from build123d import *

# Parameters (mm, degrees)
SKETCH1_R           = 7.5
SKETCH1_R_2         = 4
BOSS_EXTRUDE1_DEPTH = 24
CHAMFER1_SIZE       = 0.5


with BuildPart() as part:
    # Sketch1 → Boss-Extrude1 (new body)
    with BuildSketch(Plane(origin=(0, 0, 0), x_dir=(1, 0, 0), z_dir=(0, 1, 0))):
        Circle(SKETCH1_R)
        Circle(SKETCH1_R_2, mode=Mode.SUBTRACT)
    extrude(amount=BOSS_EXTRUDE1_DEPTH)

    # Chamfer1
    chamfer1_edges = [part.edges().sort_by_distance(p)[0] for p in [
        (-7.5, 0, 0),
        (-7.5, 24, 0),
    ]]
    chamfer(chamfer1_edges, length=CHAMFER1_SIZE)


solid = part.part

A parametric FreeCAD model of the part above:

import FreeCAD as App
import Part
import Sketcher


def edges_at(feature, points):
    """Names of the edges that pass closest to the given points."""
    edges = feature.Shape.Edges
    near = lambda p: min(range(len(edges)), key=lambda i: edges[i].distToShape(Part.Vertex(*p))[0])
    return sorted({f"Edge{near(p) + 1}" for p in points})

doc = App.newDocument("Part")
body = doc.addObject("PartDesign::Body", "Body")

# Sketch on XZ plane
sketch1 = body.newObject("Sketcher::SketchObject", "Sketch")
sketch1.AttachmentSupport = (doc.getObject("XZ_Plane"), [""])
sketch1.MapMode = "FlatFace"
sketch1.addGeometry(Part.Circle(App.Vector(0, 0, 0), App.Vector(0, 0, 1), 7.5), False)
sketch1.addGeometry(Part.Circle(App.Vector(0, 0, 0), App.Vector(0, 0, 1), 4), False)
sketch1.addConstraint(Sketcher.Constraint("Coincident", 0, 3, -1, 1))
sketch1.addConstraint(Sketcher.Constraint("Coincident", 1, 3, -1, 1))
sketch1.addConstraint(Sketcher.Constraint("Diameter", 0, 15.0))
sketch1.addConstraint(Sketcher.Constraint("Diameter", 1, 8.0))
pad1 = body.newObject("PartDesign::Pad", "Pad")
pad1.Profile = sketch1
pad1.Length = 24
pad1.Reversed = True
doc.recompute()

chamfer = body.newObject("PartDesign::Chamfer", "Chamfer")
chamfer.Base = (pad1, edges_at(pad1, [(-7.5, 0, 0), (-7.5, 24, 0)]))
chamfer.Size = 0.5

doc.recompute()
